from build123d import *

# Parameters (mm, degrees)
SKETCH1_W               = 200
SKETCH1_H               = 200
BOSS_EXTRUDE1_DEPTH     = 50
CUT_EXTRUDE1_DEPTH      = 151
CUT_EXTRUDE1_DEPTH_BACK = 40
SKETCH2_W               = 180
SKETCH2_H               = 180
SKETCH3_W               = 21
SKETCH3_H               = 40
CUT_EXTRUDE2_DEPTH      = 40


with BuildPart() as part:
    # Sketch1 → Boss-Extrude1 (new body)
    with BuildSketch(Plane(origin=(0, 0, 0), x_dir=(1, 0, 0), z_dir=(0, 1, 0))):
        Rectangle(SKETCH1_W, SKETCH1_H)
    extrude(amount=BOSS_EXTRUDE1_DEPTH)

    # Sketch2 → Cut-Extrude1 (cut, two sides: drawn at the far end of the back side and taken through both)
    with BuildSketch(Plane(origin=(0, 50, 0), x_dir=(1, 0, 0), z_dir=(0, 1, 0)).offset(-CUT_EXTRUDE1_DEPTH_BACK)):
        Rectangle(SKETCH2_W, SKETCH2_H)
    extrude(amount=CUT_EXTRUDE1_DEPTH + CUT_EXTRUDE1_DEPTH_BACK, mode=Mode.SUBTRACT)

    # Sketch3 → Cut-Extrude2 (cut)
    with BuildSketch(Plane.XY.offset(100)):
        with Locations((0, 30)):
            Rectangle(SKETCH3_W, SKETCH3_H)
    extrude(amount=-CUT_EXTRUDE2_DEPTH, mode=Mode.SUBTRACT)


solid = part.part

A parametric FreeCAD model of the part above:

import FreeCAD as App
import Part
import Sketcher

V = App.Vector


def add_polygon(sketch, points):
    """Adds a closed chain of lines whose ends are joined by coincident constraints."""
    first, n = sketch.GeometryCount, len(points)
    for a, b in zip(points, points[1:] + points[:1]):
        sketch.addGeometry(Part.LineSegment(App.Vector(*a, 0), App.Vector(*b, 0)), False)
    for i in range(n):
        sketch.addConstraint(Sketcher.Constraint("Coincident", first + i, 2, first + (i + 1) % n, 1))

doc = App.newDocument("Part")
params = doc.addObject("Spreadsheet::Sheet", "Params")
for row, (alias, value) in enumerate([
    ("sketch1_width", "200 mm"),
    ("pad1_length", "50 mm"),
    ("sketch2_width", "180 mm"),
    ("pocket1_length", "151 mm"),
    ("pocket1_length2", "40 mm"),
    ("sketch3_width", "21 mm"),
    ("sketch3_height", "40 mm"),
    ("pocket2_length", "40 mm"),
], start=1):
    params.set(f"A{row}", alias)
    params.set(f"B{row}", "=" + value)
    params.setAlias(f"B{row}", alias)

body = doc.addObject("PartDesign::Body", "Body")

sketch1 = body.newObject("Sketcher::SketchObject", "Sketch")
sketch1.AttachmentSupport = (doc.getObject("XZ_Plane"), [""])
sketch1.MapMode = "FlatFace"
add_polygon(sketch1, [(-100, -100), (-100, 100), (100, 100), (100, -100)])
sketch1.addConstraint([
    Sketcher.Constraint("Vertical", 0),
    Sketcher.Constraint("Horizontal", 1),
    Sketcher.Constraint("Vertical", 2),
    Sketcher.Constraint("Horizontal", 3),
    Sketcher.Constraint("Symmetric", 0, 2, 2, 2, -1, 1),
    Sketcher.Constraint("Equal", 3, 0),
    Sketcher.Constraint("DistanceX", 1, 1, 1, 2, 200.0),
])
sketch1.setExpression("Constraints[10]", "Params.sketch1_width")
pad1 = body.newObject("PartDesign::Pad", "Pad")
pad1.Profile = sketch1
pad1.setExpression("Length", "Params.pad1_length")
pad1.Reversed = True

sketch2 = body.newObject("Sketcher::SketchObject", "Sketch001")
sketch2.AttachmentSupport = (doc.getObject("XZ_Plane"), [""])
sketch2.MapMode = "FlatFace"
sketch2.AttachmentOffset = App.Placement(V(0, 0, -50), App.Rotation())
add_polygon(sketch2, [(-90, -90), (-90, 90), (90, 90), (90, -90)])
sketch2.addConstraint([
    Sketcher.Constraint("Vertical", 0),
    Sketcher.Constraint("Horizontal", 1),
    Sketcher.Constraint("Vertical", 2),
    Sketcher.Constraint("Horizontal", 3),
    Sketcher.Constraint("Symmetric", 0, 2, 2, 2, -1, 1),
    Sketcher.Constraint("Equal", 3, 0),
    Sketcher.Constraint("DistanceX", 1, 1, 1, 2, 180.0),
])
sketch2.setExpression("Constraints[10]", "Params.sketch2_width")
pocket1 = body.newObject("PartDesign::Pocket", "Pocket")
pocket1.Profile = sketch2
pocket1.Type = "TwoLengths"
pocket1.setExpression("Length", "Params.pocket1_length")
pocket1.setExpression("Length2", "Params.pocket1_length2")

sketch3 = body.newObject("Sketcher::SketchObject", "Sketch002")
sketch3.AttachmentSupport = (doc.getObject("XY_Plane"), [""])
sketch3.MapMode = "FlatFace"
sketch3.AttachmentOffset = App.Placement(V(0, 0, 100), App.Rotation())
add_polygon(sketch3, [(-10, 50), (-10, 10), (10, 10), (10, 50)])
sketch3.addConstraint([
    Sketcher.Constraint("Vertical", 0),
    Sketcher.Constraint("Horizontal", 1),
    Sketcher.Constraint("Vertical", 2),
    Sketcher.Constraint("Horizontal", 3),
    Sketcher.Constraint("DistanceX", 1, 1, 1, 2, 21.0),
    Sketcher.Constraint("DistanceY", 0, 2, 0, 1, 40.0),
    Sketcher.Constraint("DistanceY", -1, 1, 0, 2, 10.0),
    Sketcher.Constraint("DistanceX", 0, 2, -1, 1, 10.5),
])
sketch3.setExpression("Constraints[8]", "Params.sketch3_width")
sketch3.setExpression("Constraints[9]", "Params.sketch3_height")
pocket2 = body.newObject("PartDesign::Pocket", "Pocket001")
pocket2.Profile = sketch3
pocket2.setExpression("Length", "Params.pocket2_length")

doc.recompute()
